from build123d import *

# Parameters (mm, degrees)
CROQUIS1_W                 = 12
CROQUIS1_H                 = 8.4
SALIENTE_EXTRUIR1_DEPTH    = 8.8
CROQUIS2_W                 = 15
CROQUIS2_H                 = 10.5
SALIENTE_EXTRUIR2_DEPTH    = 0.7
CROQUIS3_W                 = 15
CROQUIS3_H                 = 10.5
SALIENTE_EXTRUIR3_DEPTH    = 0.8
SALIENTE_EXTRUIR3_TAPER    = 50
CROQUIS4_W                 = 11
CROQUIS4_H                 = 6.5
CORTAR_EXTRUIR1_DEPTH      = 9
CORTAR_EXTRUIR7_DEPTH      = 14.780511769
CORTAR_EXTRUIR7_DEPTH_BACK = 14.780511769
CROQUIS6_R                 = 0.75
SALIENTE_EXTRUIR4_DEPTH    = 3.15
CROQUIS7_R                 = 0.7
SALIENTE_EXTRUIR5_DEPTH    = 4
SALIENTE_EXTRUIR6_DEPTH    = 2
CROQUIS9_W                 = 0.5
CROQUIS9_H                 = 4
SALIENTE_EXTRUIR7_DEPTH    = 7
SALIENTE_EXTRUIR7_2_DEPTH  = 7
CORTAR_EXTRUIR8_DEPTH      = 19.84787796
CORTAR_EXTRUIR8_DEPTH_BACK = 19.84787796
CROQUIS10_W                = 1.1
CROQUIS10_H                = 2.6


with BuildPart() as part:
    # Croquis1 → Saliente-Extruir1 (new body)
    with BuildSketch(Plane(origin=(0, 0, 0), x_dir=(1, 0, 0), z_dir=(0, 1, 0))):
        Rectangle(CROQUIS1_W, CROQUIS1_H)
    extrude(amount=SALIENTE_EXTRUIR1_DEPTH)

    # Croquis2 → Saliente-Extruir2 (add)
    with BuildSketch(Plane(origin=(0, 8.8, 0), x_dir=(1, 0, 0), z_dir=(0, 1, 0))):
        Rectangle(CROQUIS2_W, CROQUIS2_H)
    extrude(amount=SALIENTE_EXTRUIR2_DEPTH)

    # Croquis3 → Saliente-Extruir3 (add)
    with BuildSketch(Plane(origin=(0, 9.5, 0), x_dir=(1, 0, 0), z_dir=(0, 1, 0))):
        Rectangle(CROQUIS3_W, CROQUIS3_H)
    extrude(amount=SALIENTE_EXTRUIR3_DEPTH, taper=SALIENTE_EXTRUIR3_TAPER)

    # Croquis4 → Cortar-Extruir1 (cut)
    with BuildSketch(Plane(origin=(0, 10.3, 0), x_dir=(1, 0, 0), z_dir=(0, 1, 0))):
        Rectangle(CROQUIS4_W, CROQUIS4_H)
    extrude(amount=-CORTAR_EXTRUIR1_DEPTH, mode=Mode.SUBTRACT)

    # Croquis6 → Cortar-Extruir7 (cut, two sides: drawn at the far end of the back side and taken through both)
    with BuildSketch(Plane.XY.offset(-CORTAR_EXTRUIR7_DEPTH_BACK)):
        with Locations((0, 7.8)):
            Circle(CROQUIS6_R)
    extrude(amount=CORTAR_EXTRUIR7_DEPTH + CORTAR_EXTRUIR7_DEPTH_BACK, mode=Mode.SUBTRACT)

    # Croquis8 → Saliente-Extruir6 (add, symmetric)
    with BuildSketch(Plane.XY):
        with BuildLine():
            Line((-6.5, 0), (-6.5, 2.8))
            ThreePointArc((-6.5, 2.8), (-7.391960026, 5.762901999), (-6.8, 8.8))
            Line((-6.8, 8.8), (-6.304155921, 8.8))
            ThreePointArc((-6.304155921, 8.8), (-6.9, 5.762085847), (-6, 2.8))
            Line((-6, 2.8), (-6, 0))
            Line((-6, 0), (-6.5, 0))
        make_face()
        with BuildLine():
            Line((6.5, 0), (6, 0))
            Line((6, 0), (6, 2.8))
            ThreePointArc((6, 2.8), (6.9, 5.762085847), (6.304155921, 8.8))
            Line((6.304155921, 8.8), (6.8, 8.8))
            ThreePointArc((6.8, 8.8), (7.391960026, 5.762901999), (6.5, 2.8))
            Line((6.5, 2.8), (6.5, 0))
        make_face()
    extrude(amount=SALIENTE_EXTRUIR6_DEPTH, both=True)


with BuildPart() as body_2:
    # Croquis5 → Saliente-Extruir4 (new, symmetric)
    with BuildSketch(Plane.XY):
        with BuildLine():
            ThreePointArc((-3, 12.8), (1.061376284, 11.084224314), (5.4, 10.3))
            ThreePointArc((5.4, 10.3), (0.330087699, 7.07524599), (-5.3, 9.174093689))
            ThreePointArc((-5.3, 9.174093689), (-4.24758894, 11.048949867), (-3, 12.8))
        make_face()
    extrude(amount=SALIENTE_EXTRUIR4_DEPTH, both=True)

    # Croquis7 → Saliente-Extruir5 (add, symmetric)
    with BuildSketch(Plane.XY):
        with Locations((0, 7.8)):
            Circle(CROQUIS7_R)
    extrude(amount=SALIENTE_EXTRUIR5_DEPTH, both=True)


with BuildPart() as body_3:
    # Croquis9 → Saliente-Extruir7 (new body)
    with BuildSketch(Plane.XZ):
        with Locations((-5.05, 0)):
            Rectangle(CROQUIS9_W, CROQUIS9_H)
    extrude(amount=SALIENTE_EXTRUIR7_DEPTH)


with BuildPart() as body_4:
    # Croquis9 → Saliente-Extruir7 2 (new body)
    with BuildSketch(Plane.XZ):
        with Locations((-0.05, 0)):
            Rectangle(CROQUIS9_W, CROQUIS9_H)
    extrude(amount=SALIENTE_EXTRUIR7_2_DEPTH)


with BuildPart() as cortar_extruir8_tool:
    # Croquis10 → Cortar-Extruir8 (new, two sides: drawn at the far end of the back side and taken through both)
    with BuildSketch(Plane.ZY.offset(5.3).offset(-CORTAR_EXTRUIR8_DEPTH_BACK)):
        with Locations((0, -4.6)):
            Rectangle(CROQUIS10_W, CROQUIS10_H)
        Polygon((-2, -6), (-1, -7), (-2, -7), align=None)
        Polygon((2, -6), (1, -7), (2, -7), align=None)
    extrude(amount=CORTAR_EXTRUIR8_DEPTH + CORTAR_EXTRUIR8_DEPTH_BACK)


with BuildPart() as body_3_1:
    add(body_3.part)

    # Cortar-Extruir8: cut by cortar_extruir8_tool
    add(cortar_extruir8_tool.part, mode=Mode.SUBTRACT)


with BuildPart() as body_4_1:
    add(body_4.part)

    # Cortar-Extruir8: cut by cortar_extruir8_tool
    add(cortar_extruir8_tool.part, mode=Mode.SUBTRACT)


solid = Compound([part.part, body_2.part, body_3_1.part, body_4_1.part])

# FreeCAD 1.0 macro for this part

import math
import FreeCAD as App
import Part
import Sketcher
from FreeCAD import Vector
Q = App.Units.Quantity

doc = App.newDocument("Part")
body = doc.addObject("PartDesign::Body", "Body")

# Sketch on XZ plane
sketch1 = body.newObject("Sketcher::SketchObject", "Sketch")
sketch1.AttachmentSupport = (doc.getObject("XZ_Plane"), [""])
sketch1.MapMode = "FlatFace"
sketch1.addGeometry([
    Part.LineSegment(Vector(-6, -4, 0), Vector(-6, 4, 0)),
    Part.LineSegment(Vector(-6, 4, 0), Vector(6, 4, 0)),
    Part.LineSegment(Vector(6, 4, 0), Vector(6, -4, 0)),
    Part.LineSegment(Vector(6, -4, 0), Vector(-6, -4, 0)),
], False)
sketch1.addConstraint([
    Sketcher.Constraint("Coincident", 0, 2, 1, 1),
    Sketcher.Constraint("Coincident", 1, 2, 2, 1),
    Sketcher.Constraint("Coincident", 2, 2, 3, 1),
    Sketcher.Constraint("Coincident", 3, 2, 0, 1),
    Sketcher.Constraint("Vertical", 0),
    Sketcher.Constraint("Horizontal", 1),
    Sketcher.Constraint("Vertical", 2),
    Sketcher.Constraint("Horizontal", 3),
    Sketcher.Constraint("Symmetric", 0, 2, 2, 2, -1, 1),
    Sketcher.Constraint("DistanceX", 1, 1, 1, 2, Q("12 mm")),
    Sketcher.Constraint("DistanceY", 0, 1, 0, 2, Q("8.4 mm")),
])
pad1 = body.newObject("PartDesign::Pad", "Pad")
pad1.Profile = sketch1
pad1.Length = 8.8
pad1.Reversed = True

# Sketch on XZ plane
sketch2 = body.newObject("Sketcher::SketchObject", "Sketch001")
sketch2.AttachmentSupport = (doc.getObject("XZ_Plane"), [""])
sketch2.MapMode = "FlatFace"
sketch2.AttachmentOffset = App.Placement(Vector(0, 0, -8.8), App.Rotation())
sketch2.addGeometry([
    Part.LineSegment(Vector(-8, -5, 0), Vector(-8, 5, 0)),
    Part.LineSegment(Vector(-8, 5, 0), Vector(8, 5, 0)),
    Part.LineSegment(Vector(8, 5, 0), Vector(8, -5, 0)),
    Part.LineSegment(Vector(8, -5, 0), Vector(-8, -5, 0)),
], False)
sketch2.addConstraint([
    Sketcher.Constraint("Coincident", 0, 2, 1, 1),
    Sketcher.Constraint("Coincident", 1, 2, 2, 1),
    Sketcher.Constraint("Coincident", 2, 2, 3, 1),
    Sketcher.Constraint("Coincident", 3, 2, 0, 1),
    Sketcher.Constraint("Vertical", 0),
    Sketcher.Constraint("Horizontal", 1),
    Sketcher.Constraint("Vertical", 2),
    Sketcher.Constraint("Horizontal", 3),
    Sketcher.Constraint("Symmetric", 0, 2, 2, 2, -1, 1),
    Sketcher.Constraint("DistanceX", 1, 1, 1, 2, Q("15 mm")),
    Sketcher.Constraint("DistanceY", 0, 1, 0, 2, Q("10.5 mm")),
])
pad2 = body.newObject("PartDesign::Pad", "Pad001")
pad2.Profile = sketch2
pad2.Length = 0.7
pad2.Reversed = True

# Sketch on XZ plane
sketch3 = body.newObject("Sketcher::SketchObject", "Sketch002")
sketch3.AttachmentSupport = (doc.getObject("XZ_Plane"), [""])
sketch3.MapMode = "FlatFace"
sketch3.AttachmentOffset = App.Placement(Vector(0, 0, -9.5), App.Rotation())
sketch3.addGeometry([
    Part.LineSegment(Vector(-8, -5, 0), Vector(-8, 5, 0)),
    Part.LineSegment(Vector(-8, 5, 0), Vector(8, 5, 0)),
    Part.LineSegment(Vector(8, 5, 0), Vector(8, -5, 0)),
    Part.LineSegment(Vector(8, -5, 0), Vector(-8, -5, 0)),
], False)
sketch3.addConstraint([
    Sketcher.Constraint("Coincident", 0, 2, 1, 1),
    Sketcher.Constraint("Coincident", 1, 2, 2, 1),
    Sketcher.Constraint("Coincident", 2, 2, 3, 1),
    Sketcher.Constraint("Coincident", 3, 2, 0, 1),
    Sketcher.Constraint("Vertical", 0),
    Sketcher.Constraint("Horizontal", 1),
    Sketcher.Constraint("Vertical", 2),
    Sketcher.Constraint("Horizontal", 3),
    Sketcher.Constraint("Symmetric", 0, 2, 2, 2, -1, 1),
    Sketcher.Constraint("DistanceX", 1, 1, 1, 2, Q("15 mm")),
    Sketcher.Constraint("DistanceY", 0, 1, 0, 2, Q("10.5 mm")),
])
pad3 = body.newObject("PartDesign::Pad", "Pad002")
pad3.Profile = sketch3
pad3.Length = 0.8
pad3.Reversed = True
pad3.TaperAngle = -50

# Sketch on XZ plane
sketch4 = body.newObject("Sketcher::SketchObject", "Sketch003")
sketch4.AttachmentSupport = (doc.getObject("XZ_Plane"), [""])
sketch4.MapMode = "FlatFace"
sketch4.AttachmentOffset = App.Placement(Vector(0, 0, -10.3), App.Rotation())
sketch4.addGeometry([
    Part.LineSegment(Vector(-6, -3, 0), Vector(-6, 3, 0)),
    Part.LineSegment(Vector(-6, 3, 0), Vector(6, 3, 0)),
    Part.LineSegment(Vector(6, 3, 0), Vector(6, -3, 0)),
    Part.LineSegment(Vector(6, -3, 0), Vector(-6, -3, 0)),
], False)
sketch4.addConstraint([
    Sketcher.Constraint("Coincident", 0, 2, 1, 1),
    Sketcher.Constraint("Coincident", 1, 2, 2, 1),
    Sketcher.Constraint("Coincident", 2, 2, 3, 1),
    Sketcher.Constraint("Coincident", 3, 2, 0, 1),
    Sketcher.Constraint("Vertical", 0),
    Sketcher.Constraint("Horizontal", 1),
    Sketcher.Constraint("Vertical", 2),
    Sketcher.Constraint("Horizontal", 3),
    Sketcher.Constraint("Symmetric", 0, 2, 2, 2, -1, 1),
    Sketcher.Constraint("DistanceX", 1, 1, 1, 2, Q("11 mm")),
    Sketcher.Constraint("DistanceY", 0, 1, 0, 2, Q("6.5 mm")),
])
pocket1 = body.newObject("PartDesign::Pocket", "Pocket")
pocket1.Profile = sketch4
pocket1.Length = 9
pocket1.Reversed = True

# Sketch on XY plane
sketch5 = body.newObject("Sketcher::SketchObject", "Sketch004")
sketch5.AttachmentSupport = (doc.getObject("XY_Plane"), [""])
sketch5.MapMode = "FlatFace"
sketch5.addGeometry(Part.Circle(Vector(0, 7.8, 0), Vector(0, 0, 1), 0.8), False)
sketch5.addConstraint([
    Sketcher.Constraint("PointOnObject", 0, 3, -2),
    Sketcher.Constraint("Diameter", 0, Q("1.5 mm")),
    Sketcher.Constraint("DistanceY", -1, 1, 0, 3, Q("7.8 mm")),
])
pocket2 = body.newObject("PartDesign::Pocket", "Pocket001")
pocket2.Profile = sketch5
pocket2.Type = "ThroughAll"
pocket2.Midplane = True

# Sketch on XY plane
sketch6 = body.newObject("Sketcher::SketchObject", "Sketch005")
sketch6.AttachmentSupport = (doc.getObject("XY_Plane"), [""])
sketch6.MapMode = "FlatFace"
sketch6.addGeometry([
    Part.LineSegment(Vector(-6.5, 2.8, 0), Vector(-6.5, 0, 0)),  # 0
    Part.LineSegment(Vector(-6.5, 0, 0), Vector(-6, 0, 0)),  # 1
    Part.LineSegment(Vector(-6, 0, 0), Vector(-6, 2.8, 0)),  # 2
    Part.ArcOfCircle(Part.Circle(Vector(-0.51, 6.09, 0), Vector(0, 0, 1), 6.4), math.radians(155), math.radians(211)),  # 3
    Part.LineSegment(Vector(-6.3, 8.8, 0), Vector(-6.8, 8.8, 0)),  # 4
    Part.ArcOfCircle(Part.Circle(Vector(-0.96, 6.08, 0), Vector(0, 0, 1), 6.44), math.radians(155), math.radians(211)),  # 5
    Part.LineSegment(Vector(6, 0, 0), Vector(6.5, 0, 0)),  # 6
    Part.LineSegment(Vector(6.5, 0, 0), Vector(6.5, 2.8, 0)),  # 7
    Part.ArcOfCircle(Part.Circle(Vector(0.96, 6.08, 0), Vector(0, 0, 1), 6.44), math.radians(-31), math.radians(25)),  # 8
    Part.LineSegment(Vector(6.8, 8.8, 0), Vector(6.3, 8.8, 0)),  # 9
    Part.ArcOfCircle(Part.Circle(Vector(0.51, 6.09, 0), Vector(0, 0, 1), 6.4), math.radians(-31), math.radians(25)),  # 10
    Part.LineSegment(Vector(6, 2.8, 0), Vector(6, 0, 0)),  # 11
], False)
sketch6.addConstraint([
    Sketcher.Constraint("Coincident", 0, 2, 1, 1),
    Sketcher.Constraint("Coincident", 1, 2, 2, 1),
    Sketcher.Constraint("Coincident", 2, 2, 3, 2),
    Sketcher.Constraint("Coincident", 3, 1, 4, 1),
    Sketcher.Constraint("Coincident", 4, 2, 5, 1),
    Sketcher.Constraint("Coincident", 5, 2, 0, 1),
    Sketcher.Constraint("Coincident", 6, 2, 7, 1),
    Sketcher.Constraint("Coincident", 7, 2, 8, 1),
    Sketcher.Constraint("Coincident", 8, 2, 9, 1),
    Sketcher.Constraint("Coincident", 9, 2, 10, 2),
    Sketcher.Constraint("Coincident", 10, 1, 11, 1),
    Sketcher.Constraint("Coincident", 11, 2, 6, 1),
    Sketcher.Constraint("Vertical", 0),
    Sketcher.Constraint("Horizontal", 1),
    Sketcher.Constraint("Vertical", 2),
    Sketcher.Constraint("Horizontal", 4),
    Sketcher.Constraint("Horizontal", 6),
    Sketcher.Constraint("Vertical", 7),
    Sketcher.Constraint("Horizontal", 9),
    Sketcher.Constraint("Vertical", 11),
    Sketcher.Constraint("Equal", 5, 8),
    Sketcher.Constraint("Equal", 3, 10),
    Sketcher.Constraint("Symmetric", 0, 2, 6, 2, -1, 1),
    Sketcher.Constraint("Symmetric", 5, 3, 8, 3, -2),
    Sketcher.Constraint("Symmetric", 3, 3, 10, 3, -2),
    Sketcher.Constraint("Symmetric", 1, 2, 11, 2, -2),
    Sketcher.Constraint("Horizontal", 2, 2, 5, 2),
    Sketcher.Constraint("Horizontal", 4, 2, 8, 2),
    Sketcher.Constraint("DistanceX", 1, 1, 1, 2, Q("0.5 mm")),
    Sketcher.Constraint("DistanceY", 0, 2, 0, 1, Q("2.8 mm")),
    Sketcher.Constraint("DistanceX", 1, 2, -1, 1, Q("6 mm")),
    Sketcher.Constraint("DistanceY", 2, 2, 3, 1, Q("6 mm")),
    Sketcher.Constraint("DistanceX", 4, 2, -1, 1, Q("6.8 mm")),
    Sketcher.Constraint("Radius", 3, Q("6.398837 mm")),
    Sketcher.Constraint("Radius", 5, Q("6.444037 mm")),
    Sketcher.Constraint("DistanceX", 4, 2, 4, 1, Q("0.495844 mm")),
])
pad4 = body.newObject("PartDesign::Pad", "Pad003")
pad4.Profile = sketch6
pad4.Length = 4
pad4.Midplane = True
body2 = doc.addObject("PartDesign::Body", "Body001")

# Sketch on XY plane
sketch7 = body2.newObject("Sketcher::SketchObject", "Sketch006")
sketch7.AttachmentSupport = (doc.getObject("XY_Plane001"), [""])
sketch7.MapMode = "FlatFace"
sketch7.addGeometry([
    Part.ArcOfCircle(Part.Circle(Vector(6.8, 30.3, 0), Vector(0, 0, 1), 20), math.radians(-119), math.radians(-94)),
    Part.ArcOfCircle(Part.Circle(Vector(12.6, 0.3, 0), Vector(0, 0, 1), 20), math.radians(141.45), math.radians(153.77)),
    Part.ArcOfCircle(Part.Circle(Vector(-0.4, 13.8, 0), Vector(0, 0, 1), 6.7), math.radians(-137), math.radians(-31)),
], False)
sketch7.addConstraint([
    Sketcher.Constraint("Coincident", 0, 1, 1, 1),
    Sketcher.Constraint("Coincident", 1, 2, 2, 1),
    Sketcher.Constraint("Coincident", 2, 2, 0, 2),
    Sketcher.Constraint("Equal", 0, 1),
    Sketcher.Constraint("Radius", 0, Q("20 mm")),
    Sketcher.Constraint("DistanceX", 0, 1, -1, 1, Q("3 mm")),
    Sketcher.Constraint("DistanceY", -1, 1, 0, 1, Q("12.8 mm")),
    Sketcher.Constraint("DistanceX", 1, 2, -1, 1, Q("5.3 mm")),
    Sketcher.Constraint("DistanceX", -1, 1, 2, 2, Q("5.4 mm")),
    Sketcher.Constraint("DistanceY", -1, 1, 2, 2, Q("10.3 mm")),
    Sketcher.Constraint("Radius", 2, Q("6.744461 mm")),
    Sketcher.Constraint("DistanceX", 2, 3, -1, 1, Q("0.375701 mm")),
])
pad5 = body2.newObject("PartDesign::Pad", "Pad004")
pad5.Profile = sketch7
pad5.Length = 6.3
pad5.Midplane = True

# Sketch on XY plane
sketch8 = body2.newObject("Sketcher::SketchObject", "Sketch007")
sketch8.AttachmentSupport = (doc.getObject("XY_Plane001"), [""])
sketch8.MapMode = "FlatFace"
sketch8.addGeometry(Part.Circle(Vector(0, 7.8, 0), Vector(0, 0, 1), 0.7), False)
sketch8.addConstraint([
    Sketcher.Constraint("PointOnObject", 0, 3, -2),
    Sketcher.Constraint("Diameter", 0, Q("1.4 mm")),
    Sketcher.Constraint("DistanceY", -1, 1, 0, 3, Q("7.8 mm")),
])
pad6 = body2.newObject("PartDesign::Pad", "Pad005")
pad6.Profile = sketch8
pad6.Length = 8
pad6.Midplane = True
body3 = doc.addObject("PartDesign::Body", "Body002")

# Sketch on XZ plane
sketch9 = body3.newObject("Sketcher::SketchObject", "Sketch008")
sketch9.AttachmentSupport = (doc.getObject("XZ_Plane002"), [""])
sketch9.MapMode = "FlatFace"
sketch9.addGeometry([
    Part.LineSegment(Vector(-5.3, 2, 0), Vector(-5.3, -2, 0)),
    Part.LineSegment(Vector(-5.3, -2, 0), Vector(-4.8, -2, 0)),
    Part.LineSegment(Vector(-4.8, -2, 0), Vector(-4.8, 2, 0)),
    Part.LineSegment(Vector(-4.8, 2, 0), Vector(-5.3, 2, 0)),
], False)
sketch9.addConstraint([
    Sketcher.Constraint("Coincident", 0, 2, 1, 1),
    Sketcher.Constraint("Coincident", 1, 2, 2, 1),
    Sketcher.Constraint("Coincident", 2, 2, 3, 1),
    Sketcher.Constraint("Coincident", 3, 2, 0, 1),
    Sketcher.Constraint("Vertical", 0),
    Sketcher.Constraint("Horizontal", 1),
    Sketcher.Constraint("Vertical", 2),
    Sketcher.Constraint("Horizontal", 3),
    Sketcher.Constraint("DistanceY", 0, 2, 0, 1, Q("4 mm")),
    Sketcher.Constraint("DistanceX", 1, 1, 1, 2, Q("0.5 mm")),
    Sketcher.Constraint("DistanceY", 0, 2, -1, 1, Q("2 mm")),
    Sketcher.Constraint("DistanceX", 0, 2, -1, 1, Q("5.3 mm")),
])
pad7 = body3.newObject("PartDesign::Pad", "Pad006")
pad7.Profile = sketch9
pad7.Length = 7
body4 = doc.addObject("PartDesign::Body", "Body003")

# Sketch on XZ plane
sketch10 = body4.newObject("Sketcher::SketchObject", "Sketch009")
sketch10.AttachmentSupport = (doc.getObject("XZ_Plane003"), [""])
sketch10.MapMode = "FlatFace"
sketch10.addGeometry([
    Part.LineSegment(Vector(-0.3, 2, 0), Vector(-0.3, -2, 0)),
    Part.LineSegment(Vector(-0.3, -2, 0), Vector(0.2, -2, 0)),
    Part.LineSegment(Vector(0.2, -2, 0), Vector(0.2, 2, 0)),
    Part.LineSegment(Vector(0.2, 2, 0), Vector(-0.3, 2, 0)),
], False)
sketch10.addConstraint([
    Sketcher.Constraint("Coincident", 0, 2, 1, 1),
    Sketcher.Constraint("Coincident", 1, 2, 2, 1),
    Sketcher.Constraint("Coincident", 2, 2, 3, 1),
    Sketcher.Constraint("Coincident", 3, 2, 0, 1),
    Sketcher.Constraint("Vertical", 0),
    Sketcher.Constraint("Horizontal", 1),
    Sketcher.Constraint("Vertical", 2),
    Sketcher.Constraint("Horizontal", 3),
    Sketcher.Constraint("DistanceY", 0, 2, 0, 1, Q("4 mm")),
    Sketcher.Constraint("DistanceX", 1, 1, 1, 2, Q("0.5 mm")),
    Sketcher.Constraint("DistanceY", 0, 2, -1, 1, Q("2 mm")),
    Sketcher.Constraint("DistanceX", 0, 2, -1, 1, Q("0.3 mm")),
])
pad8 = body4.newObject("PartDesign::Pad", "Pad007")
pad8.Profile = sketch10
pad8.Length = 7
body5 = doc.addObject("PartDesign::Body", "Body004")
body5.AllowCompound = True

# Sketch on YZ plane
sketch11 = body5.newObject("Sketcher::SketchObject", "Sketch010")
sketch11.AttachmentSupport = (doc.getObject("YZ_Plane004"), [""])
sketch11.MapMode = "FlatFace"
sketch11.AttachmentOffset = App.Placement(Vector(0, 0, -5.3), App.Rotation())
sketch11.addGeometry([
    Part.LineSegment(Vector(-3.3, -0.6, 0), Vector(-5.9, -0.6, 0)),  # 0
    Part.LineSegment(Vector(-5.9, -0.6, 0), Vector(-5.9, 0.6, 0)),  # 1
    Part.LineSegment(Vector(-5.9, 0.6, 0), Vector(-3.3, 0.6, 0)),  # 2
    Part.LineSegment(Vector(-3.3, 0.6, 0), Vector(-3.3, -0.6, 0)),  # 3
    Part.LineSegment(Vector(-7, -1, 0), Vector(-6, -2, 0)),  # 4
    Part.LineSegment(Vector(-6, -2, 0), Vector(-7, -2, 0)),  # 5
    Part.LineSegment(Vector(-7, -2, 0), Vector(-7, -1, 0)),  # 6
    Part.LineSegment(Vector(-6, 2, 0), Vector(-7, 1, 0)),  # 7
    Part.LineSegment(Vector(-7, 1, 0), Vector(-7, 2, 0)),  # 8
    Part.LineSegment(Vector(-7, 2, 0), Vector(-6, 2, 0)),  # 9
], False)
sketch11.addConstraint([
    Sketcher.Constraint("Coincident", 0, 2, 1, 1),
    Sketcher.Constraint("Coincident", 1, 2, 2, 1),
    Sketcher.Constraint("Coincident", 2, 2, 3, 1),
    Sketcher.Constraint("Coincident", 3, 2, 0, 1),
    Sketcher.Constraint("Coincident", 4, 2, 5, 1),
    Sketcher.Constraint("Coincident", 5, 2, 6, 1),
    Sketcher.Constraint("Coincident", 6, 2, 4, 1),
    Sketcher.Constraint("Coincident", 7, 2, 8, 1),
    Sketcher.Constraint("Coincident", 8, 2, 9, 1),
    Sketcher.Constraint("Coincident", 9, 2, 7, 1),
    Sketcher.Constraint("Horizontal", 0),
    Sketcher.Constraint("Vertical", 1),
    Sketcher.Constraint("Horizontal", 2),
    Sketcher.Constraint("Vertical", 3),
    Sketcher.Constraint("Horizontal", 5),
    Sketcher.Constraint("Vertical", 6),
    Sketcher.Constraint("Vertical", 8),
    Sketcher.Constraint("Horizontal", 9),
    Sketcher.Constraint("Symmetric", 6, 2, 7, 2, -1),
    Sketcher.Constraint("Symmetric", 4, 2, 9, 2, -1),
    Sketcher.Constraint("Perpendicular", 4, 7),
    Sketcher.Constraint("DistanceX", 5, 2, 5, 1, Q("1 mm")),
    Sketcher.Constraint("DistanceX", 0, 2, 0, 1, Q("2.6 mm")),
    Sketcher.Constraint("DistanceY", 1, 1, 1, 2, Q("1.1 mm")),
    Sketcher.Constraint("DistanceX", 4, 2, -1, 1, Q("6 mm")),
    Sketcher.Constraint("DistanceY", 4, 2, -1, 1, Q("2 mm")),
    Sketcher.Constraint("DistanceX", 0, 2, -1, 1, Q("5.9 mm")),
    Sketcher.Constraint("DistanceY", 0, 2, -1, 1, Q("0.55 mm")),
])
pad9 = body5.newObject("PartDesign::Pad", "Pad008")
pad9.Profile = sketch11
pad9.Type = "TwoLengths"
pad9.Length = 19.847878
pad9.Length2 = 19.847878
pad9.Reversed = True
doc.recompute()

body6 = doc.addObject("PartDesign::Body", "Body005")
body6.BaseFeature = body5
boolean = body3.newObject("PartDesign::Boolean", "Boolean")
boolean.Type = "Cut"
boolean.addObjects([body6])
doc.recompute()

boolean2 = body4.newObject("PartDesign::Boolean", "Boolean001")
boolean2.Type = "Cut"
boolean2.addObjects([body5])

doc.recompute()
